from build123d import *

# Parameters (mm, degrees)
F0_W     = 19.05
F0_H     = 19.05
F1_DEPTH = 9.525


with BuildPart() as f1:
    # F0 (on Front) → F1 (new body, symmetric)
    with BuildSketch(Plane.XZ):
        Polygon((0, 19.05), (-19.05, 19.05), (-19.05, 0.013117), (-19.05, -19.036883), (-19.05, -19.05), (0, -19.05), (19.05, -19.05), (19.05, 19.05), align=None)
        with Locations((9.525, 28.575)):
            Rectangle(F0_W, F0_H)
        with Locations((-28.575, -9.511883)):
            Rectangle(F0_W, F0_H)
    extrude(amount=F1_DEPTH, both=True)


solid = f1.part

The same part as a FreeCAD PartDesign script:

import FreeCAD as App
import Part
import Sketcher
Q = App.Units.Quantity

doc = App.newDocument("Part")
params = doc.addObject("Spreadsheet::Sheet", "Params")
for row, (alias, value) in enumerate([
    ("sketch1_width", "1.5 in"),
    ("sketch1_height", "2.25 in"),
    ("pad1_length", "0.75 in"),
], start=1):
    params.set(f"A{row}", alias)
    params.set(f"B{row}", "=" + value)
    params.setAlias(f"B{row}", alias)

body = doc.addObject("PartDesign::Body", "Body")

# Sketch on XZ plane
sketch1 = body.newObject("Sketcher::SketchObject", "Sketch")
sketch1.AttachmentSupport = (doc.getObject("XZ_Plane"), [""])
sketch1.MapMode = "FlatFace"
sketch1.addGeometry([
    Part.LineSegment(App.Vector(-19.05, 19.05, 0), App.Vector(-19.05, 0.013, 0)),  # 0
    Part.LineSegment(App.Vector(-19.05, 0.013, 0), App.Vector(-38.1, 0.013, 0)),  # 1
    Part.LineSegment(App.Vector(-38.1, 0.013, 0), App.Vector(-38.1, -19.037, 0)),  # 2
    Part.LineSegment(App.Vector(-38.1, -19.037, 0), App.Vector(-19.05, -19.037, 0)),  # 3
    Part.LineSegment(App.Vector(-19.05, -19.037, 0), App.Vector(-19.05, -19.05, 0)),  # 4
    Part.LineSegment(App.Vector(-19.05, -19.05, 0), App.Vector(19.05, -19.05, 0)),  # 5
    Part.LineSegment(App.Vector(19.05, -19.05, 0), App.Vector(19.05, 38.1, 0)),  # 6
    Part.LineSegment(App.Vector(19.05, 38.1, 0), App.Vector(0, 38.1, 0)),  # 7
    Part.LineSegment(App.Vector(0, 38.1, 0), App.Vector(0, 19.05, 0)),  # 8
    Part.LineSegment(App.Vector(0, 19.05, 0), App.Vector(-19.05, 19.05, 0)),  # 9
], False)
sketch1.addConstraint([
    Sketcher.Constraint("Coincident", 0, 2, 1, 1),
    Sketcher.Constraint("Coincident", 1, 2, 2, 1),
    Sketcher.Constraint("Coincident", 2, 2, 3, 1),
    Sketcher.Constraint("Coincident", 3, 2, 4, 1),
    Sketcher.Constraint("Coincident", 4, 2, 5, 1),
    Sketcher.Constraint("Coincident", 5, 2, 6, 1),
    Sketcher.Constraint("Coincident", 6, 2, 7, 1),
    Sketcher.Constraint("Coincident", 7, 2, 8, 1),
    Sketcher.Constraint("Coincident", 8, 2, 9, 1),
    Sketcher.Constraint("Coincident", 9, 2, 0, 1),
    Sketcher.Constraint("Vertical", 0),
    Sketcher.Constraint("Horizontal", 1),
    Sketcher.Constraint("Vertical", 2),
    Sketcher.Constraint("Horizontal", 3),
    Sketcher.Constraint("Vertical", 4),
    Sketcher.Constraint("Horizontal", 5),
    Sketcher.Constraint("Vertical", 6),
    Sketcher.Constraint("Horizontal", 7),
    Sketcher.Constraint("Vertical", 8),
    Sketcher.Constraint("Horizontal", 9),
    Sketcher.Constraint("Symmetric", 5, 2, 9, 2, -1, 1),
    Sketcher.Constraint("PointOnObject", 7, 2, -2),
    Sketcher.Constraint("Vertical", 0, 2, 3, 2),
    Sketcher.Constraint("Equal", 3, 7),
    Sketcher.Constraint("Equal", 9, 2),
    Sketcher.Constraint("Equal", 2, 8),
    Sketcher.Constraint("DistanceX", 5, 1, 5, 2, Q("1.5 in")),
    Sketcher.Constraint("DistanceY", 6, 1, 6, 2, Q("2.25 in")),
    Sketcher.Constraint("DistanceY", 0, 2, 0, 1, Q("19.036883 mm")),
])
sketch1.setExpression("Constraints[26]", "Params.sketch1_width")
sketch1.setExpression("Constraints[27]", "Params.sketch1_height")
pad1 = body.newObject("PartDesign::Pad", "Pad")
pad1.Profile = sketch1
pad1.setExpression("Length", "Params.pad1_length")
pad1.Midplane = True

doc.recompute()
